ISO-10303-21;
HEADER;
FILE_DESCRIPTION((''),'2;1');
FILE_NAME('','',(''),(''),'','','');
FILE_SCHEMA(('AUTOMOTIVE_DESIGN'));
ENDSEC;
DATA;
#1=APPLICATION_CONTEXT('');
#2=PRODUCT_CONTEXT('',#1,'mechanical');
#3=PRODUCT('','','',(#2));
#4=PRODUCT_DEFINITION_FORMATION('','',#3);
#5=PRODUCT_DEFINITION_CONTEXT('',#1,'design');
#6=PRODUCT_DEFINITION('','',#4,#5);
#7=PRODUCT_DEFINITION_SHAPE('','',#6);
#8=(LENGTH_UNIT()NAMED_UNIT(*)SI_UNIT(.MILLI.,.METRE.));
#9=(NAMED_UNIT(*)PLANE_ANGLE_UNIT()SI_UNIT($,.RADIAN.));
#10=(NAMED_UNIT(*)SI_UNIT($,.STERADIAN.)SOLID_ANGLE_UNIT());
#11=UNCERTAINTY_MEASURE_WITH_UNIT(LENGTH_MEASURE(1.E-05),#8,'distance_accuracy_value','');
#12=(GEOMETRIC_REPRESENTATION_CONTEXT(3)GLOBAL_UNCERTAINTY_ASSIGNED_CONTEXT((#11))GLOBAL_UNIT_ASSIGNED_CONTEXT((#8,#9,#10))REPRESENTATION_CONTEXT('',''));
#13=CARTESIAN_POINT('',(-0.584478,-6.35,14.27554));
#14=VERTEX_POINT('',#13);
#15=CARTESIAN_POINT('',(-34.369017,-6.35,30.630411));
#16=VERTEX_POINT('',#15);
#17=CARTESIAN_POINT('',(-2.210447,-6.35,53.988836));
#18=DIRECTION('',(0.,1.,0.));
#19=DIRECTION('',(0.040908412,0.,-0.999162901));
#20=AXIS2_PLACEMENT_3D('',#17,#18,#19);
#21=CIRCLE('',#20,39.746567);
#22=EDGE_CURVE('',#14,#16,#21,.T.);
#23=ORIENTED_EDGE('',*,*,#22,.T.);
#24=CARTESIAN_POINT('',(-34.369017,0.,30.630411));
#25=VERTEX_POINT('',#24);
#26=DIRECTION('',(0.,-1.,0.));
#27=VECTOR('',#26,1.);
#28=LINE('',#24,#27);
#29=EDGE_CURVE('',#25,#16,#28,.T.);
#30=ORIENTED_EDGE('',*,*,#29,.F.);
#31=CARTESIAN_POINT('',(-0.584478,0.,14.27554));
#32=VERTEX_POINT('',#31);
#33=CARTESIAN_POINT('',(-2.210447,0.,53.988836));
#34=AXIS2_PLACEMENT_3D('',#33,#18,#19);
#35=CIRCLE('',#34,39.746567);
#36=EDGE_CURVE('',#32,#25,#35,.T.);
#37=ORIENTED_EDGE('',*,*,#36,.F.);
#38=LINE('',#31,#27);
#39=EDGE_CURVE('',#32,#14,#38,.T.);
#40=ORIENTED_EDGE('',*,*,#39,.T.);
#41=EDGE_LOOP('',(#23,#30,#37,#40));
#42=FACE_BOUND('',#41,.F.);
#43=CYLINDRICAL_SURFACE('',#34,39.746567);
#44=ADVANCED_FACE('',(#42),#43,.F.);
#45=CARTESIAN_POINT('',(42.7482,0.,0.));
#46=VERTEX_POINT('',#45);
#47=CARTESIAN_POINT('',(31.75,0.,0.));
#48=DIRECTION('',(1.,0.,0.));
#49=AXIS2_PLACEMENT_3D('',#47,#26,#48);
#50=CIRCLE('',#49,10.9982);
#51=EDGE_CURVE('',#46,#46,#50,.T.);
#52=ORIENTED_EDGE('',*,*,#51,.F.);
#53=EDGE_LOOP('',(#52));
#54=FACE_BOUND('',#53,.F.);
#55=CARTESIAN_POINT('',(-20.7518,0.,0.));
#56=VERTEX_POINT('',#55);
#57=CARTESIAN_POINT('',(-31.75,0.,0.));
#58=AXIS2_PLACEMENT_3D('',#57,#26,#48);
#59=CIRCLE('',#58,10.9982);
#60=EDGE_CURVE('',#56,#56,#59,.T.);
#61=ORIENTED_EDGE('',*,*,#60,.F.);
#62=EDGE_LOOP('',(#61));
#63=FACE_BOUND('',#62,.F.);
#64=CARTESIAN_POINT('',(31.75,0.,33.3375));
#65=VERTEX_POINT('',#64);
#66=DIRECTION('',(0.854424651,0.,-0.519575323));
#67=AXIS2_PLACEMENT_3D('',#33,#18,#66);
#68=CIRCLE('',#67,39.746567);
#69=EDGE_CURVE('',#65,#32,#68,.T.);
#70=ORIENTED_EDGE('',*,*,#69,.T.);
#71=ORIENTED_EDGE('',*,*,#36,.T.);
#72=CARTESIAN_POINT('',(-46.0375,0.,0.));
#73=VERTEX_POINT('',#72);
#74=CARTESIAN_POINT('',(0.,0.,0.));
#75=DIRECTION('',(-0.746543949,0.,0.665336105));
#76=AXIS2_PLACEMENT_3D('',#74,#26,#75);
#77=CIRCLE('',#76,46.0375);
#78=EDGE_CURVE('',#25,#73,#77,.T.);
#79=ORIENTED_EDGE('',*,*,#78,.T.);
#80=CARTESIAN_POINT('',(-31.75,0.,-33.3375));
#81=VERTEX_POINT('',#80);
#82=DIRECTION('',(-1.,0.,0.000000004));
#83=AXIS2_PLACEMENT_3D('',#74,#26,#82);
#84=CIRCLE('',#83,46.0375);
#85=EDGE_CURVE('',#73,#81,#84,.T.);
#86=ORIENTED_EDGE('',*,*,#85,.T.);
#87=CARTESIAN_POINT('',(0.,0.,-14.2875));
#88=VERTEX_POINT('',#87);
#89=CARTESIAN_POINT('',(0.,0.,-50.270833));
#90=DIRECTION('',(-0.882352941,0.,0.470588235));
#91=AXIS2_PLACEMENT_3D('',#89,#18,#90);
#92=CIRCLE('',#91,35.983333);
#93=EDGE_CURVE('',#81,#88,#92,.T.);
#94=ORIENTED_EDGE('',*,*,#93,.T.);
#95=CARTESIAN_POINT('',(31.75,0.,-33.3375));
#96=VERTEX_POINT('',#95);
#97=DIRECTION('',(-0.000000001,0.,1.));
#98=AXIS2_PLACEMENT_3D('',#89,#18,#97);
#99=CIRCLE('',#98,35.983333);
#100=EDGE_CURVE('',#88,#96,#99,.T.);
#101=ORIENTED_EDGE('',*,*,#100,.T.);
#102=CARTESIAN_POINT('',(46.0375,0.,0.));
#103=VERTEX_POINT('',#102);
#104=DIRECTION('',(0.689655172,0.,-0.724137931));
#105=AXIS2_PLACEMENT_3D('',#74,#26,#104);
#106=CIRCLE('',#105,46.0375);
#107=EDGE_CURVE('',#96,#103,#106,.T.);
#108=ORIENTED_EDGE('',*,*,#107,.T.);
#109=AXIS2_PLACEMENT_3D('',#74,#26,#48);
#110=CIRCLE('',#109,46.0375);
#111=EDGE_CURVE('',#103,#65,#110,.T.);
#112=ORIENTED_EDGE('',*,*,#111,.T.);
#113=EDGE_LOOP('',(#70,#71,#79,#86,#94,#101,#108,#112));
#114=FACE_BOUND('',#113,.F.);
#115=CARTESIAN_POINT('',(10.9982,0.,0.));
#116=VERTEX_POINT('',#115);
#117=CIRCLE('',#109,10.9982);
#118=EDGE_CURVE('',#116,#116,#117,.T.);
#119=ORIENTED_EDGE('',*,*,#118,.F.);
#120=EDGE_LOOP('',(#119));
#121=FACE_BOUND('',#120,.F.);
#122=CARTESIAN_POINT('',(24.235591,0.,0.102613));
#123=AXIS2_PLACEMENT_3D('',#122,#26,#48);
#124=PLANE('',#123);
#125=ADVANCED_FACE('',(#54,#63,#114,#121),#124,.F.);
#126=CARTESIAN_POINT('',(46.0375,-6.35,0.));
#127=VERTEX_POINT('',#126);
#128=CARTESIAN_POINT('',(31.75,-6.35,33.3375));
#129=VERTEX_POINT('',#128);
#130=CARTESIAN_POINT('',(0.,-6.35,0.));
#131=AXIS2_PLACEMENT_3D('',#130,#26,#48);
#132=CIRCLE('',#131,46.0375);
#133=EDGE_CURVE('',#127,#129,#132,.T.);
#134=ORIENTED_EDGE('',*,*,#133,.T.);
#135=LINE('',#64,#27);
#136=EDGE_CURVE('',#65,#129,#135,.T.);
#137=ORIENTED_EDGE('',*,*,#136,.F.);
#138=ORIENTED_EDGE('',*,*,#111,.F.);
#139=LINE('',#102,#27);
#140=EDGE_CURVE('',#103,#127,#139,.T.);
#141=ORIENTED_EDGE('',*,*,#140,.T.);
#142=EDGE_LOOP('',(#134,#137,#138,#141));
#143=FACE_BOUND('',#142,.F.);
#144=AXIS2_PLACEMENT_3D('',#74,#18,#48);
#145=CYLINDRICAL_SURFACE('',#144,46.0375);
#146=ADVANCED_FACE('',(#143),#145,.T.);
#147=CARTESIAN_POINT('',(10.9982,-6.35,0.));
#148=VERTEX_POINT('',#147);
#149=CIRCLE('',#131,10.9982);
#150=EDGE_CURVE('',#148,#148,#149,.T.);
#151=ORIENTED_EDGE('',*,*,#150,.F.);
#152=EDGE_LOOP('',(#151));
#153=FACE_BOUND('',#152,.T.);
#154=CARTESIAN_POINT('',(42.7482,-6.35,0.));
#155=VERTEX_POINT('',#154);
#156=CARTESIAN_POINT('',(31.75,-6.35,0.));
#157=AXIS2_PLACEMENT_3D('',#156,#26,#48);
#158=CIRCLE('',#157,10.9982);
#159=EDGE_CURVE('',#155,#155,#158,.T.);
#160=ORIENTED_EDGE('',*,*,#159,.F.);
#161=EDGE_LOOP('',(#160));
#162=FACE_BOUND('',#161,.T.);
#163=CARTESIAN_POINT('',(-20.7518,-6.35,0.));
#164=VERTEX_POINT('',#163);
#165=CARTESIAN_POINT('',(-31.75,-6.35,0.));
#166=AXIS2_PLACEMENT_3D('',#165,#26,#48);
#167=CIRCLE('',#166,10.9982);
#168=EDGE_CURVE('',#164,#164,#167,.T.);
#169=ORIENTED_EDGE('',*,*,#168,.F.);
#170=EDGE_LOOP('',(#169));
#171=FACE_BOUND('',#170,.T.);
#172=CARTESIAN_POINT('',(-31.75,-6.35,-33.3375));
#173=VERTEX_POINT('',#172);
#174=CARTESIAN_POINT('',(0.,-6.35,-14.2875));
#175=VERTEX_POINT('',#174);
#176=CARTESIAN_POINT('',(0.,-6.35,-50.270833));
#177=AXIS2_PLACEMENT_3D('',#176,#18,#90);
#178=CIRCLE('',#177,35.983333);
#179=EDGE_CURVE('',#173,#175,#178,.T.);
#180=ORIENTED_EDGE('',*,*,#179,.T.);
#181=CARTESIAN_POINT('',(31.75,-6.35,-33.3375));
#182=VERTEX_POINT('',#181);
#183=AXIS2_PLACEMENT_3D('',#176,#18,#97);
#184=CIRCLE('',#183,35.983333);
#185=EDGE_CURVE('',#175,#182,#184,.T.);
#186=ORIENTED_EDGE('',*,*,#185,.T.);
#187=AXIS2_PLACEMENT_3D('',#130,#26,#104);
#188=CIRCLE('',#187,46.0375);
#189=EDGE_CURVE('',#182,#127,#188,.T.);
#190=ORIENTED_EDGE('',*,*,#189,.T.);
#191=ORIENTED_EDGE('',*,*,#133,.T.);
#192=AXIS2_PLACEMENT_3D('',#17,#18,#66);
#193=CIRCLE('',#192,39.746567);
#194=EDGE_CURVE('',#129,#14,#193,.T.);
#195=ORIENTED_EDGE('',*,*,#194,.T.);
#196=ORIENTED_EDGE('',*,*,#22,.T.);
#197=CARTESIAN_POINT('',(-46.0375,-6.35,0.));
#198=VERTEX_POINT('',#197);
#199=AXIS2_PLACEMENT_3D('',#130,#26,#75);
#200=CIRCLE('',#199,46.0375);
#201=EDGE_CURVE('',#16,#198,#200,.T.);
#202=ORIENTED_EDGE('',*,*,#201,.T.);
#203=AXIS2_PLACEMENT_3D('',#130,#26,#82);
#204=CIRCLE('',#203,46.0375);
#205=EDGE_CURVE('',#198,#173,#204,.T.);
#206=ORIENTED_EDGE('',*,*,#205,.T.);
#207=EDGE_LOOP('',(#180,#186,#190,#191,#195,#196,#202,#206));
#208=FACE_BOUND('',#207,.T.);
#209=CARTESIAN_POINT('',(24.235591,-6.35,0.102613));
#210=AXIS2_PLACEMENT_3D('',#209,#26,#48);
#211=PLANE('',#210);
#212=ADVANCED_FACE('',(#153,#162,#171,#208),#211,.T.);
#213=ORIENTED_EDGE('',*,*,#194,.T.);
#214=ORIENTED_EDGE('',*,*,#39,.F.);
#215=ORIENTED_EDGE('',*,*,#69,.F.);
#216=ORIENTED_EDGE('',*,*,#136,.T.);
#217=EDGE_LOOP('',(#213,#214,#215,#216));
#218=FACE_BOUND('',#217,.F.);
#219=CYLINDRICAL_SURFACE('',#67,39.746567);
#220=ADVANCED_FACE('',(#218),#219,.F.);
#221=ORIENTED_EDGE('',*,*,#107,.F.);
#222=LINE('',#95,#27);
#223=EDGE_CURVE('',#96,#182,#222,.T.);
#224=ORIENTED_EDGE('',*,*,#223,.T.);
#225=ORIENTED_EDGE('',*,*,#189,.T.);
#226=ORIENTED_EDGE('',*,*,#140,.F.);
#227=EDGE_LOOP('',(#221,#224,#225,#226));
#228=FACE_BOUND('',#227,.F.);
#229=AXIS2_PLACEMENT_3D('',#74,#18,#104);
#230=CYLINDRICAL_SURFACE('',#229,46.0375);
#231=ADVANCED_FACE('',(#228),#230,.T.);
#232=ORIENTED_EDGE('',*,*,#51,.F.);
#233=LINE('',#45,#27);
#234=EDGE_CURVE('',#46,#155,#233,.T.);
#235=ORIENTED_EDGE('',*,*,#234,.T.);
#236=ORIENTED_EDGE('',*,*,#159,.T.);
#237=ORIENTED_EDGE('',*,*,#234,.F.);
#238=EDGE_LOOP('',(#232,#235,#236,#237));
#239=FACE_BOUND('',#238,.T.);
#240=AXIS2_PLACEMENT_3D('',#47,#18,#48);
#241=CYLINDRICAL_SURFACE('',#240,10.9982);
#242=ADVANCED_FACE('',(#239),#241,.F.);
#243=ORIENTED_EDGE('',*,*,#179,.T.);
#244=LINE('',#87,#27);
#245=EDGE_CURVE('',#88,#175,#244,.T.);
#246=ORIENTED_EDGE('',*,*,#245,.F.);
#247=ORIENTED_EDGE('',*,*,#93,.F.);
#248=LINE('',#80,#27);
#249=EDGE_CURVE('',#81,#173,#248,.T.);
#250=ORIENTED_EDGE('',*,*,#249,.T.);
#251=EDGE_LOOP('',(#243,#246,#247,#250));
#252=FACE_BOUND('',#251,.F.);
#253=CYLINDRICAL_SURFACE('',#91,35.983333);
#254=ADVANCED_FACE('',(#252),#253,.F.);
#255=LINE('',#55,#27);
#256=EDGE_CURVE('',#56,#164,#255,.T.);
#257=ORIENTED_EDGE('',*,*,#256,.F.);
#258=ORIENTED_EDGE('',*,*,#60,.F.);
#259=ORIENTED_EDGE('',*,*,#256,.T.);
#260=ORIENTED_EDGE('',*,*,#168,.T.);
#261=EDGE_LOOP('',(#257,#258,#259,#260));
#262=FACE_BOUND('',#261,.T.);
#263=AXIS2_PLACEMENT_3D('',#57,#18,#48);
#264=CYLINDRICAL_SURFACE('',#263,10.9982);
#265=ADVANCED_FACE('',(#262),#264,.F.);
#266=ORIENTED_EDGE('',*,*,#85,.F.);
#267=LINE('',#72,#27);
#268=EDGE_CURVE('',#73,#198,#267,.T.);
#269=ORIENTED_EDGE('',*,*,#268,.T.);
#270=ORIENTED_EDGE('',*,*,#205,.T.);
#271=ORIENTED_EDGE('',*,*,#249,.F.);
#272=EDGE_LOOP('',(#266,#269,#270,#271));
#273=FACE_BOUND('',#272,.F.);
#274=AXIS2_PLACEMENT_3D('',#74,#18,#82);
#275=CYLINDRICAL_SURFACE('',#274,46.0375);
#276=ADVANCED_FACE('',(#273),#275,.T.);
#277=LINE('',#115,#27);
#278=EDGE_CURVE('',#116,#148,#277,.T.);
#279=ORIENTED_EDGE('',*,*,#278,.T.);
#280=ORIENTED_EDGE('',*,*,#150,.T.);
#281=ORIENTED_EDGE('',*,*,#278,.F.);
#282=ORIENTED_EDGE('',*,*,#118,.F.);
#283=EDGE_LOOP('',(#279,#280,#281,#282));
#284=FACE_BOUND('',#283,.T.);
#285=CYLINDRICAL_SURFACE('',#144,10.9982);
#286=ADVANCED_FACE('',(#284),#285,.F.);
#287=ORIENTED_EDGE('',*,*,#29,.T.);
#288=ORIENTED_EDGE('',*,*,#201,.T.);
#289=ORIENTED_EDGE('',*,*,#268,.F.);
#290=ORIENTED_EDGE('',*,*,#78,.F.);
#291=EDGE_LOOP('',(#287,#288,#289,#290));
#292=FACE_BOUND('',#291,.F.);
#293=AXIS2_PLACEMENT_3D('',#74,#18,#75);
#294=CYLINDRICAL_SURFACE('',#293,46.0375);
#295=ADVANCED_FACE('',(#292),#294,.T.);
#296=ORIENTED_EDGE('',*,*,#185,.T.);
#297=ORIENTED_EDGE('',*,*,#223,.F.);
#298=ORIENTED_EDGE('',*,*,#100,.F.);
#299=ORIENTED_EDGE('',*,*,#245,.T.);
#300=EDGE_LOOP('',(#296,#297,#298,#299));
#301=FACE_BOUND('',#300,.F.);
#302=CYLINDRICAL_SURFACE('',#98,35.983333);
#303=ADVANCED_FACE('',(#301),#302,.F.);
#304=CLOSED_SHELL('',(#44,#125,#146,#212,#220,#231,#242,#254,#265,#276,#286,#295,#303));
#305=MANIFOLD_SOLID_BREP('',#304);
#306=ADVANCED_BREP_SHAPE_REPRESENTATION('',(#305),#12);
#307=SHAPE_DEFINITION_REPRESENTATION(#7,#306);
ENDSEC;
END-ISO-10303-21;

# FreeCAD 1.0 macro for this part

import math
import FreeCAD as App
import Part
import Sketcher
Q = App.Units.Quantity

doc = App.newDocument("Part")
body = doc.addObject("PartDesign::Body", "Body")

# Sketch on XZ plane
sketch1 = body.newObject("Sketcher::SketchObject", "Sketch")
sketch1.AttachmentSupport = (doc.getObject("XZ_Plane"), [""])
sketch1.MapMode = "FlatFace"
sketch1.addGeometry(Part.ArcOfCircle(Part.Circle(App.Vector(-2, 54, 0), App.Vector(0, 0, 1), 40), math.radians(-144), math.radians(-88)), False)
sketch1.addGeometry(Part.ArcOfCircle(Part.Circle(App.Vector(0, 0, 0), App.Vector(0, 0, 1), 46), math.radians(138), math.radians(180)), False)
sketch1.addGeometry(Part.ArcOfCircle(Part.Circle(App.Vector(0, 0, 0), App.Vector(0, 0, 1), 46), math.radians(180), math.radians(226)), False)
sketch1.addGeometry(Part.ArcOfCircle(Part.Circle(App.Vector(0, -50, 0), App.Vector(0, 0, 1), 36), math.radians(90), math.radians(152)), False)
sketch1.addGeometry(Part.ArcOfCircle(Part.Circle(App.Vector(0, -50, 0), App.Vector(0, 0, 1), 36), math.radians(28), math.radians(90)), False)
sketch1.addGeometry(Part.ArcOfCircle(Part.Circle(App.Vector(0, 0, 0), App.Vector(0, 0, 1), 46), math.radians(-46), math.radians(0)), False)
sketch1.addGeometry(Part.ArcOfCircle(Part.Circle(App.Vector(0, 0, 0), App.Vector(0, 0, 1), 46), math.radians(0), math.radians(46)), False)
sketch1.addGeometry(Part.ArcOfCircle(Part.Circle(App.Vector(-2, 54, 0), App.Vector(0, 0, 1), 40), math.radians(-88), math.radians(-31)), False)
sketch1.addGeometry(Part.Circle(App.Vector(-32, 0, 0), App.Vector(0, 0, 1), 11), False)
sketch1.addGeometry(Part.Circle(App.Vector(0, 0, 0), App.Vector(0, 0, 1), 11), False)
sketch1.addGeometry(Part.Circle(App.Vector(32, 0, 0), App.Vector(0, 0, 1), 11), False)
sketch1.addConstraint(Sketcher.Constraint("Coincident", 0, 1, 1, 1))
sketch1.addConstraint(Sketcher.Constraint("Tangent", 1, 2, 2, 1))
sketch1.addConstraint(Sketcher.Constraint("Coincident", 2, 2, 3, 2))
sketch1.addConstraint(Sketcher.Constraint("Tangent", 3, 1, 4, 2))
sketch1.addConstraint(Sketcher.Constraint("Coincident", 4, 1, 5, 1))
sketch1.addConstraint(Sketcher.Constraint("Tangent", 5, 2, 6, 1))
sketch1.addConstraint(Sketcher.Constraint("Coincident", 6, 2, 7, 2))
sketch1.addConstraint(Sketcher.Constraint("Tangent", 7, 1, 0, 2))
sketch1.addConstraint(Sketcher.Constraint("Coincident", 1, 3, -1, 1))
sketch1.addConstraint(Sketcher.Constraint("Coincident", 5, 3, -1, 1))
sketch1.addConstraint(Sketcher.Constraint("Coincident", 9, 3, -1, 1))
sketch1.addConstraint(Sketcher.Constraint("Equal", 1, 2))
sketch1.addConstraint(Sketcher.Constraint("Equal", 3, 4))
sketch1.addConstraint(Sketcher.Constraint("Equal", 2, 5))
sketch1.addConstraint(Sketcher.Constraint("Equal", 5, 6))
sketch1.addConstraint(Sketcher.Constraint("Equal", 0, 7))
sketch1.addConstraint(Sketcher.Constraint("Equal", 8, 9))
sketch1.addConstraint(Sketcher.Constraint("Equal", 9, 10))
sketch1.addConstraint(Sketcher.Constraint("Symmetric", 8, 3, 10, 3, -1, 1))
sketch1.addConstraint(Sketcher.Constraint("PointOnObject", 3, 3, -2))
sketch1.addConstraint(Sketcher.Constraint("PointOnObject", 8, 3, -1))
sketch1.addConstraint(Sketcher.Constraint("PointOnObject", 1, 2, -1))
sketch1.addConstraint(Sketcher.Constraint("PointOnObject", 3, 1, -2))
sketch1.addConstraint(Sketcher.Constraint("PointOnObject", 5, 2, -1))
sketch1.addConstraint(Sketcher.Constraint("Vertical", 8, 3, 2, 2))
sketch1.addConstraint(Sketcher.Constraint("Vertical", 4, 1, 6, 2))
sketch1.addConstraint(Sketcher.Constraint("Diameter", 8, Q("0.866 in")))
sketch1.addConstraint(Sketcher.Constraint("Radius", 1, Q("1.8125 in")))
sketch1.addConstraint(Sketcher.Constraint("DistanceX", 8, 3, -1, 1, Q("1.25 in")))
sketch1.addConstraint(Sketcher.Constraint("DistanceY", 4, 1, 3, 1, Q("0.75 in")))
sketch1.addConstraint(Sketcher.Constraint("Radius", 0, Q("39.746567 mm")))
sketch1.addConstraint(Sketcher.Constraint("DistanceY", -1, 1, 0, 1, Q("30.630411 mm")))
sketch1.addConstraint(Sketcher.Constraint("DistanceX", 7, 1, -1, 1, Q("0.584478 mm")))
pad1 = body.newObject("PartDesign::Pad", "Pad")
pad1.Profile = sketch1
pad1.Length = Q("0.25 in")

doc.recompute()
